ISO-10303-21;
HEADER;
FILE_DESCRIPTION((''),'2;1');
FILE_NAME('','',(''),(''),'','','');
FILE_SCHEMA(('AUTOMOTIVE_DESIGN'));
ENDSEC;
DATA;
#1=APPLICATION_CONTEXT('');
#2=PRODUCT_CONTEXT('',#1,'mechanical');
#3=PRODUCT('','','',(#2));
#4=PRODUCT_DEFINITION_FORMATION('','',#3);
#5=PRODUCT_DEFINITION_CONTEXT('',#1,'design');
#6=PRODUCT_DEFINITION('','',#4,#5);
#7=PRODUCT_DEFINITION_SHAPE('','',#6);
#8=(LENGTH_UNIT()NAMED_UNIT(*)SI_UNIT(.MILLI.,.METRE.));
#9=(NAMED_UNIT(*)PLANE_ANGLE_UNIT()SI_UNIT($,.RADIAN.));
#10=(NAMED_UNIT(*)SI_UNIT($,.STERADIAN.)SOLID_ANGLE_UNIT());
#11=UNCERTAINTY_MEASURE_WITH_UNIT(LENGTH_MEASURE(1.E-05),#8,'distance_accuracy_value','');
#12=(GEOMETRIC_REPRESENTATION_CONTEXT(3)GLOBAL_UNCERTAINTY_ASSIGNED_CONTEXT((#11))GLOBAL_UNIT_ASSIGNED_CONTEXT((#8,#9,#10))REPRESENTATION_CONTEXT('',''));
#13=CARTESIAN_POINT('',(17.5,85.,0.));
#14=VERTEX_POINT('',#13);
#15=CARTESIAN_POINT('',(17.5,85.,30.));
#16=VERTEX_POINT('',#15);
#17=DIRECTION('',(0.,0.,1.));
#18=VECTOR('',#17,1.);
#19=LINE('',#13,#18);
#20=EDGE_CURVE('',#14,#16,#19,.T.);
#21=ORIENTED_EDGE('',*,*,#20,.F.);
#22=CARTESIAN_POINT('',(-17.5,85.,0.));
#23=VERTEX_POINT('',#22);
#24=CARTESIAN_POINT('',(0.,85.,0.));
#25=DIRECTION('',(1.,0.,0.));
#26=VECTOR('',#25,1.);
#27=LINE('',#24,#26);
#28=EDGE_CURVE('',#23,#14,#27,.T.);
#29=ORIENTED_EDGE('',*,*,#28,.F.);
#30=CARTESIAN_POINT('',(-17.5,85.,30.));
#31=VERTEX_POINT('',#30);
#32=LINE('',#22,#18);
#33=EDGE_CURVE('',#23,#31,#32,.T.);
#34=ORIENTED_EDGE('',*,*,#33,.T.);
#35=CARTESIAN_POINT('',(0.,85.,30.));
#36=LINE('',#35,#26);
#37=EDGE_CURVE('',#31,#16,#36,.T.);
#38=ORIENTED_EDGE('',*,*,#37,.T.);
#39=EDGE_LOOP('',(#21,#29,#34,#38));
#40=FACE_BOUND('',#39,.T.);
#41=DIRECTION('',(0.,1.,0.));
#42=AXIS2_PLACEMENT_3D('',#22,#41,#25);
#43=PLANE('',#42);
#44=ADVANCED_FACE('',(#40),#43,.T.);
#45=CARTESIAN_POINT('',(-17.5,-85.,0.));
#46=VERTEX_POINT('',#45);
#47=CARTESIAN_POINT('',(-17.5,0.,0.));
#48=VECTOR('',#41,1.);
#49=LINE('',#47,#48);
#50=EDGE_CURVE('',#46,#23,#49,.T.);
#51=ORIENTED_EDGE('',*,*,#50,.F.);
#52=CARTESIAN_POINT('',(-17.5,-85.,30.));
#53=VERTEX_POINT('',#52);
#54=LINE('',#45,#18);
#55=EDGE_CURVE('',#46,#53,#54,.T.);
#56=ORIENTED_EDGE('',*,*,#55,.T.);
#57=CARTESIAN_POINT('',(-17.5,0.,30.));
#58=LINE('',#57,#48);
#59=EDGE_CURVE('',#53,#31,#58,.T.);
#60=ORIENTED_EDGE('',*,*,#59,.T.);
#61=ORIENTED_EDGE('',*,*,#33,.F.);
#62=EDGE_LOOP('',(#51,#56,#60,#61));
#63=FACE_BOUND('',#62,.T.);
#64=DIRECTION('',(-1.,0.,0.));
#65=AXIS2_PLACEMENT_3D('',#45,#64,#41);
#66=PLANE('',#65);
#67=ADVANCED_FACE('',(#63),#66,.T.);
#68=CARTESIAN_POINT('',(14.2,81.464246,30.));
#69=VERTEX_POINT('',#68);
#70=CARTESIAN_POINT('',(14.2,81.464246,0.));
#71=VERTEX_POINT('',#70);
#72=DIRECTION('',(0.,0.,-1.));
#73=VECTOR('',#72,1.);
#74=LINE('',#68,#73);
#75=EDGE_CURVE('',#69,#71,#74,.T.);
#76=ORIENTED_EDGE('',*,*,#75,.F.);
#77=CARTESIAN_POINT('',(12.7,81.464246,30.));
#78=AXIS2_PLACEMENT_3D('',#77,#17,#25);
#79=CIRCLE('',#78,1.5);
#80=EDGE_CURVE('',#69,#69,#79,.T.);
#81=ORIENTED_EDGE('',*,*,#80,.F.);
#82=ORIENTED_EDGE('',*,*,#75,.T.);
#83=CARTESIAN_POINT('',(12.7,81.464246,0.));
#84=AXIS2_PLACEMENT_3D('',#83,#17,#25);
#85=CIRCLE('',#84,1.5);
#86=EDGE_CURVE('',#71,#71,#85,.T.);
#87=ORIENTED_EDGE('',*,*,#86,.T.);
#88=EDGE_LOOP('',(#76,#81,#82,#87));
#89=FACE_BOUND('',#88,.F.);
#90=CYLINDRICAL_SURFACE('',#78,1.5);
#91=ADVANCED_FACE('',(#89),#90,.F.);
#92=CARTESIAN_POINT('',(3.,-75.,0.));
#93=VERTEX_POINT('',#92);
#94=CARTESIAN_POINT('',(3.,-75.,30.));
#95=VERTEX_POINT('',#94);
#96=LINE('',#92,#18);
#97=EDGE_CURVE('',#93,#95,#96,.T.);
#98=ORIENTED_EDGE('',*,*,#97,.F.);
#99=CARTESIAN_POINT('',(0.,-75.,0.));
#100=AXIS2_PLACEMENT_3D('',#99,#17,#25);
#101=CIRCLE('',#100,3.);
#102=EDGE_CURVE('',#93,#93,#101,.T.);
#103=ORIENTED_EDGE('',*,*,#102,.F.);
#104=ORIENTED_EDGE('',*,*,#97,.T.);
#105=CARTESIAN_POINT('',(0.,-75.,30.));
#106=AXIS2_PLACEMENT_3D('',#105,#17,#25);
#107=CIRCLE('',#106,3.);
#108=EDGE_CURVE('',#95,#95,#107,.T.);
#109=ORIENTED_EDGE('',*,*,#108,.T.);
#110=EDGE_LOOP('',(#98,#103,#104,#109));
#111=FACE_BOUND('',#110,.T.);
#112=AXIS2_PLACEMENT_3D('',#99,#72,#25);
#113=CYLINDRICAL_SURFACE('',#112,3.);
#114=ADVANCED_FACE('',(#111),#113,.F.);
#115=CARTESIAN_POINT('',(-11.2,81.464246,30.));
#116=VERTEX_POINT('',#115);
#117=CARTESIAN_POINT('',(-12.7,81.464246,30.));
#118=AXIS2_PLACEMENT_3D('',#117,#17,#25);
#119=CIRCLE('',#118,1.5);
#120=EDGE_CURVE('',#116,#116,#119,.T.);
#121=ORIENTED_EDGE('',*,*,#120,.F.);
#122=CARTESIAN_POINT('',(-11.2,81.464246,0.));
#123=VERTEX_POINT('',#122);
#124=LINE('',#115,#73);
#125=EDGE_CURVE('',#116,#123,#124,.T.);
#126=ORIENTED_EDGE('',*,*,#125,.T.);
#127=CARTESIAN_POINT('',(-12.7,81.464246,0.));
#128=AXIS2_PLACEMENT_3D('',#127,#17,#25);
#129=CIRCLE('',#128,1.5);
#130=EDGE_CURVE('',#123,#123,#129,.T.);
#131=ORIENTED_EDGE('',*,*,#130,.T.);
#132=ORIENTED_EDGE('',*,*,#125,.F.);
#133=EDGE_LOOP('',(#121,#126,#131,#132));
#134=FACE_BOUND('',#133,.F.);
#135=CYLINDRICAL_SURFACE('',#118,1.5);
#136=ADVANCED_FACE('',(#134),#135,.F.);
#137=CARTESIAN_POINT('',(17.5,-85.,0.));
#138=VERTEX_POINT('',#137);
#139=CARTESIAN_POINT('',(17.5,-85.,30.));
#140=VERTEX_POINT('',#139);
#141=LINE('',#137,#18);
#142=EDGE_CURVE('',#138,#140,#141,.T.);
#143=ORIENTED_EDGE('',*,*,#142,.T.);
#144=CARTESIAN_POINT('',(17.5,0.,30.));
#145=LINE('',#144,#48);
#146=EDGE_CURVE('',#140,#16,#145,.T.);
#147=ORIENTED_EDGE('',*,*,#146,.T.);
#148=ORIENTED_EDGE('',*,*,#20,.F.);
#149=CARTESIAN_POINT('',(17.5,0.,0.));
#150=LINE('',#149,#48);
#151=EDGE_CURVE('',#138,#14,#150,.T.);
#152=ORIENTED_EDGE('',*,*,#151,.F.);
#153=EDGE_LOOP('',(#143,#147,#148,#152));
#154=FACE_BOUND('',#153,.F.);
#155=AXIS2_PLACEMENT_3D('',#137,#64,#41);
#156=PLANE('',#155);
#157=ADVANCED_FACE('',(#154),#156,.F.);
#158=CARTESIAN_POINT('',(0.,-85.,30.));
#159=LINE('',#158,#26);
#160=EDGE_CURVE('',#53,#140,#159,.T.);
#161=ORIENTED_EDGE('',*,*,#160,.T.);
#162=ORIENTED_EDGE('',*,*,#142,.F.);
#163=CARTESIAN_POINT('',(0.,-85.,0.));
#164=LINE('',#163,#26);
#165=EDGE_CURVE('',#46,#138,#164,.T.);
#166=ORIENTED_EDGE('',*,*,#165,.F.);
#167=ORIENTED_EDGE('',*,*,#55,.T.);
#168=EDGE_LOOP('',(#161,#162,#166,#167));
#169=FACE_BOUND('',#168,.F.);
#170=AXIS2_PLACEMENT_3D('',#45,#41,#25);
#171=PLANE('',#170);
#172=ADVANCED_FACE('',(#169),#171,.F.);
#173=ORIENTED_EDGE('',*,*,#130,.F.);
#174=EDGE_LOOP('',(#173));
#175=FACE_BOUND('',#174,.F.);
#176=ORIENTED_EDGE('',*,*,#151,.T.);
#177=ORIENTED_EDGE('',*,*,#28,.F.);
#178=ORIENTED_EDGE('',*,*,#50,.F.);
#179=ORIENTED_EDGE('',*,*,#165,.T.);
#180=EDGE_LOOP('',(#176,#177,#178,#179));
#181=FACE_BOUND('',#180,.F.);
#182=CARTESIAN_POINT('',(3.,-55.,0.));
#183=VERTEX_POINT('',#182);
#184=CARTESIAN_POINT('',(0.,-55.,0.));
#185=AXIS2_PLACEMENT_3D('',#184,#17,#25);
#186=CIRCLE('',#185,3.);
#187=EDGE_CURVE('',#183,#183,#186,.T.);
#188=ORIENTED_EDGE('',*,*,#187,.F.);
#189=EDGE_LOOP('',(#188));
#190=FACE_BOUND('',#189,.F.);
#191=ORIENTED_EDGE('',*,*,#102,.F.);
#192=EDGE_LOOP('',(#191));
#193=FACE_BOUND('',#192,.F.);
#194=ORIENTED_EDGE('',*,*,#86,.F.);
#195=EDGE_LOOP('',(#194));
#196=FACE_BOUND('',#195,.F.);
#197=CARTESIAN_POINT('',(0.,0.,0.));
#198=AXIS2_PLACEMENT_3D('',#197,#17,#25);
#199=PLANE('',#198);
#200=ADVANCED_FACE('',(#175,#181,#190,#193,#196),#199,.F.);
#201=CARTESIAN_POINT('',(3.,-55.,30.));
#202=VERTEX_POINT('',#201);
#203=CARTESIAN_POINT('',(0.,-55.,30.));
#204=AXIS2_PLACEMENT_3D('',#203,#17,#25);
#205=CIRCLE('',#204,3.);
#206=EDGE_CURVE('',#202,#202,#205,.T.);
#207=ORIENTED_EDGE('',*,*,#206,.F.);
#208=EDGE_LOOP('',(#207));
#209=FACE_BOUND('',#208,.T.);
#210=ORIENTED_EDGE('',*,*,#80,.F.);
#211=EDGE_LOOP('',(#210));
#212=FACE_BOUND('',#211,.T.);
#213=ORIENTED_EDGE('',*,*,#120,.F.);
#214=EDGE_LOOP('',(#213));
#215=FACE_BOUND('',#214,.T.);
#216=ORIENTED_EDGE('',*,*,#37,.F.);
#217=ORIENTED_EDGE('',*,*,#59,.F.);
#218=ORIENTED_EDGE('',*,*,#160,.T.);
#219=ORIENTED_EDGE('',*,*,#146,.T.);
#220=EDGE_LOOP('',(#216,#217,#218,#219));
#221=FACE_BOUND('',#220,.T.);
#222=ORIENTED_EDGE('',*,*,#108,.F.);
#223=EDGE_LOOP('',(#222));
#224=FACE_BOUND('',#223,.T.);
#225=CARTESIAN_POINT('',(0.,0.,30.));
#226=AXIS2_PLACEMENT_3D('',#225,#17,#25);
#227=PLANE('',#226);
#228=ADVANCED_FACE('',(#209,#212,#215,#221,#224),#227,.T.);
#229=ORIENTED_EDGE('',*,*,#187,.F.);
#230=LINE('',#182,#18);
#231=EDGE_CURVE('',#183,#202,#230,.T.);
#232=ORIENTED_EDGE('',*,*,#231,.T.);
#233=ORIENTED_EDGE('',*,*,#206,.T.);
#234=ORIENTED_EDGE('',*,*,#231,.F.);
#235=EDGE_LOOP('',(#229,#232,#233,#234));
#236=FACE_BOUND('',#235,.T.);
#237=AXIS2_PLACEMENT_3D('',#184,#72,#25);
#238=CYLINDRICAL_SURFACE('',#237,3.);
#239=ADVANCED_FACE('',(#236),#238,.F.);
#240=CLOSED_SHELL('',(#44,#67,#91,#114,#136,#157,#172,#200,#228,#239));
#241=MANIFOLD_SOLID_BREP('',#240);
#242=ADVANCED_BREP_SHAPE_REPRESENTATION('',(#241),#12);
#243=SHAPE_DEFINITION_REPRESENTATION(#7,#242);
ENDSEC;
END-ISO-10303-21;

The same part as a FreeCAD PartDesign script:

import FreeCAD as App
import Part
import Sketcher

V = App.Vector
Q = App.Units.Quantity

doc = App.newDocument("Part")
body = doc.addObject("PartDesign::Body", "Body")

# Sketch on XY plane
sketch1 = body.newObject("Sketcher::SketchObject", "Sketch")
sketch1.AttachmentSupport = (doc.getObject("XY_Plane"), [""])
sketch1.MapMode = "FlatFace"
sketch1.addGeometry(Part.LineSegment(V(-17.5, 85, 0), V(-17.5, -85, 0)), False)
sketch1.addGeometry(Part.LineSegment(V(-17.5, -85, 0), V(17.5, -85, 0)), False)
sketch1.addGeometry(Part.LineSegment(V(17.5, -85, 0), V(17.5, 85, 0)), False)
sketch1.addGeometry(Part.LineSegment(V(17.5, 85, 0), V(-17.5, 85, 0)), False)
sketch1.addGeometry(Part.Circle(V(0, -75, 0), V(0, 0, 1), 3), False)
sketch1.addGeometry(Part.Circle(V(0, -55, 0), V(0, 0, 1), 3), False)
sketch1.addConstraint(Sketcher.Constraint("Coincident", 0, 2, 1, 1))
sketch1.addConstraint(Sketcher.Constraint("Coincident", 1, 2, 2, 1))
sketch1.addConstraint(Sketcher.Constraint("Coincident", 2, 2, 3, 1))
sketch1.addConstraint(Sketcher.Constraint("Coincident", 3, 2, 0, 1))
sketch1.addConstraint(Sketcher.Constraint("Vertical", 0))
sketch1.addConstraint(Sketcher.Constraint("Horizontal", 1))
sketch1.addConstraint(Sketcher.Constraint("Vertical", 2))
sketch1.addConstraint(Sketcher.Constraint("Horizontal", 3))
sketch1.addConstraint(Sketcher.Constraint("Equal", 4, 5))
sketch1.addConstraint(Sketcher.Constraint("Symmetric", 0, 2, 2, 2, -1, 1))
sketch1.addConstraint(Sketcher.Constraint("PointOnObject", 4, 3, -2))
sketch1.addConstraint(Sketcher.Constraint("PointOnObject", 5, 3, -2))
sketch1.addConstraint(Sketcher.Constraint("Diameter", 4, Q("6 mm")))
sketch1.addConstraint(Sketcher.Constraint("DistanceX", 1, 1, 1, 2, Q("35 mm")))
sketch1.addConstraint(Sketcher.Constraint("DistanceY", 0, 2, 0, 1, Q("170 mm")))
sketch1.addConstraint(Sketcher.Constraint("DistanceY", 4, 3, -1, 1, Q("75 mm")))
sketch1.addConstraint(Sketcher.Constraint("DistanceY", 5, 3, -1, 1, Q("55 mm")))
pad1 = body.newObject("PartDesign::Pad", "Pad")
pad1.Profile = sketch1
pad1.Length = 30

# Sketch on XY plane
sketch2 = body.newObject("Sketcher::SketchObject", "Sketch001")
sketch2.AttachmentSupport = (doc.getObject("XY_Plane"), [""])
sketch2.MapMode = "FlatFace"
sketch2.AttachmentOffset = App.Placement(V(0, 0, 30), App.Rotation())
sketch2.addGeometry(Part.Circle(V(-12.7, 81.5, 0), V(0, 0, 1), 1.5), False)
sketch2.addGeometry(Part.Circle(V(12.7, 81.5, 0), V(0, 0, 1), 1.5), False)
sketch2.addConstraint(Sketcher.Constraint("Equal", 0, 1))
sketch2.addConstraint(Sketcher.Constraint("Symmetric", 0, 3, 1, 3, -2))
sketch2.addConstraint(Sketcher.Constraint("Diameter", 0, Q("3 mm")))
sketch2.addConstraint(Sketcher.Constraint("DistanceX", 0, 3, -1, 1, Q("12.7 mm")))
sketch2.addConstraint(Sketcher.Constraint("DistanceY", -1, 1, 0, 3, Q("81.464246 mm")))
pocket1 = body.newObject("PartDesign::Pocket", "Pocket")
pocket1.Profile = sketch2
pocket1.Type = "ThroughAll"

doc.recompute()
